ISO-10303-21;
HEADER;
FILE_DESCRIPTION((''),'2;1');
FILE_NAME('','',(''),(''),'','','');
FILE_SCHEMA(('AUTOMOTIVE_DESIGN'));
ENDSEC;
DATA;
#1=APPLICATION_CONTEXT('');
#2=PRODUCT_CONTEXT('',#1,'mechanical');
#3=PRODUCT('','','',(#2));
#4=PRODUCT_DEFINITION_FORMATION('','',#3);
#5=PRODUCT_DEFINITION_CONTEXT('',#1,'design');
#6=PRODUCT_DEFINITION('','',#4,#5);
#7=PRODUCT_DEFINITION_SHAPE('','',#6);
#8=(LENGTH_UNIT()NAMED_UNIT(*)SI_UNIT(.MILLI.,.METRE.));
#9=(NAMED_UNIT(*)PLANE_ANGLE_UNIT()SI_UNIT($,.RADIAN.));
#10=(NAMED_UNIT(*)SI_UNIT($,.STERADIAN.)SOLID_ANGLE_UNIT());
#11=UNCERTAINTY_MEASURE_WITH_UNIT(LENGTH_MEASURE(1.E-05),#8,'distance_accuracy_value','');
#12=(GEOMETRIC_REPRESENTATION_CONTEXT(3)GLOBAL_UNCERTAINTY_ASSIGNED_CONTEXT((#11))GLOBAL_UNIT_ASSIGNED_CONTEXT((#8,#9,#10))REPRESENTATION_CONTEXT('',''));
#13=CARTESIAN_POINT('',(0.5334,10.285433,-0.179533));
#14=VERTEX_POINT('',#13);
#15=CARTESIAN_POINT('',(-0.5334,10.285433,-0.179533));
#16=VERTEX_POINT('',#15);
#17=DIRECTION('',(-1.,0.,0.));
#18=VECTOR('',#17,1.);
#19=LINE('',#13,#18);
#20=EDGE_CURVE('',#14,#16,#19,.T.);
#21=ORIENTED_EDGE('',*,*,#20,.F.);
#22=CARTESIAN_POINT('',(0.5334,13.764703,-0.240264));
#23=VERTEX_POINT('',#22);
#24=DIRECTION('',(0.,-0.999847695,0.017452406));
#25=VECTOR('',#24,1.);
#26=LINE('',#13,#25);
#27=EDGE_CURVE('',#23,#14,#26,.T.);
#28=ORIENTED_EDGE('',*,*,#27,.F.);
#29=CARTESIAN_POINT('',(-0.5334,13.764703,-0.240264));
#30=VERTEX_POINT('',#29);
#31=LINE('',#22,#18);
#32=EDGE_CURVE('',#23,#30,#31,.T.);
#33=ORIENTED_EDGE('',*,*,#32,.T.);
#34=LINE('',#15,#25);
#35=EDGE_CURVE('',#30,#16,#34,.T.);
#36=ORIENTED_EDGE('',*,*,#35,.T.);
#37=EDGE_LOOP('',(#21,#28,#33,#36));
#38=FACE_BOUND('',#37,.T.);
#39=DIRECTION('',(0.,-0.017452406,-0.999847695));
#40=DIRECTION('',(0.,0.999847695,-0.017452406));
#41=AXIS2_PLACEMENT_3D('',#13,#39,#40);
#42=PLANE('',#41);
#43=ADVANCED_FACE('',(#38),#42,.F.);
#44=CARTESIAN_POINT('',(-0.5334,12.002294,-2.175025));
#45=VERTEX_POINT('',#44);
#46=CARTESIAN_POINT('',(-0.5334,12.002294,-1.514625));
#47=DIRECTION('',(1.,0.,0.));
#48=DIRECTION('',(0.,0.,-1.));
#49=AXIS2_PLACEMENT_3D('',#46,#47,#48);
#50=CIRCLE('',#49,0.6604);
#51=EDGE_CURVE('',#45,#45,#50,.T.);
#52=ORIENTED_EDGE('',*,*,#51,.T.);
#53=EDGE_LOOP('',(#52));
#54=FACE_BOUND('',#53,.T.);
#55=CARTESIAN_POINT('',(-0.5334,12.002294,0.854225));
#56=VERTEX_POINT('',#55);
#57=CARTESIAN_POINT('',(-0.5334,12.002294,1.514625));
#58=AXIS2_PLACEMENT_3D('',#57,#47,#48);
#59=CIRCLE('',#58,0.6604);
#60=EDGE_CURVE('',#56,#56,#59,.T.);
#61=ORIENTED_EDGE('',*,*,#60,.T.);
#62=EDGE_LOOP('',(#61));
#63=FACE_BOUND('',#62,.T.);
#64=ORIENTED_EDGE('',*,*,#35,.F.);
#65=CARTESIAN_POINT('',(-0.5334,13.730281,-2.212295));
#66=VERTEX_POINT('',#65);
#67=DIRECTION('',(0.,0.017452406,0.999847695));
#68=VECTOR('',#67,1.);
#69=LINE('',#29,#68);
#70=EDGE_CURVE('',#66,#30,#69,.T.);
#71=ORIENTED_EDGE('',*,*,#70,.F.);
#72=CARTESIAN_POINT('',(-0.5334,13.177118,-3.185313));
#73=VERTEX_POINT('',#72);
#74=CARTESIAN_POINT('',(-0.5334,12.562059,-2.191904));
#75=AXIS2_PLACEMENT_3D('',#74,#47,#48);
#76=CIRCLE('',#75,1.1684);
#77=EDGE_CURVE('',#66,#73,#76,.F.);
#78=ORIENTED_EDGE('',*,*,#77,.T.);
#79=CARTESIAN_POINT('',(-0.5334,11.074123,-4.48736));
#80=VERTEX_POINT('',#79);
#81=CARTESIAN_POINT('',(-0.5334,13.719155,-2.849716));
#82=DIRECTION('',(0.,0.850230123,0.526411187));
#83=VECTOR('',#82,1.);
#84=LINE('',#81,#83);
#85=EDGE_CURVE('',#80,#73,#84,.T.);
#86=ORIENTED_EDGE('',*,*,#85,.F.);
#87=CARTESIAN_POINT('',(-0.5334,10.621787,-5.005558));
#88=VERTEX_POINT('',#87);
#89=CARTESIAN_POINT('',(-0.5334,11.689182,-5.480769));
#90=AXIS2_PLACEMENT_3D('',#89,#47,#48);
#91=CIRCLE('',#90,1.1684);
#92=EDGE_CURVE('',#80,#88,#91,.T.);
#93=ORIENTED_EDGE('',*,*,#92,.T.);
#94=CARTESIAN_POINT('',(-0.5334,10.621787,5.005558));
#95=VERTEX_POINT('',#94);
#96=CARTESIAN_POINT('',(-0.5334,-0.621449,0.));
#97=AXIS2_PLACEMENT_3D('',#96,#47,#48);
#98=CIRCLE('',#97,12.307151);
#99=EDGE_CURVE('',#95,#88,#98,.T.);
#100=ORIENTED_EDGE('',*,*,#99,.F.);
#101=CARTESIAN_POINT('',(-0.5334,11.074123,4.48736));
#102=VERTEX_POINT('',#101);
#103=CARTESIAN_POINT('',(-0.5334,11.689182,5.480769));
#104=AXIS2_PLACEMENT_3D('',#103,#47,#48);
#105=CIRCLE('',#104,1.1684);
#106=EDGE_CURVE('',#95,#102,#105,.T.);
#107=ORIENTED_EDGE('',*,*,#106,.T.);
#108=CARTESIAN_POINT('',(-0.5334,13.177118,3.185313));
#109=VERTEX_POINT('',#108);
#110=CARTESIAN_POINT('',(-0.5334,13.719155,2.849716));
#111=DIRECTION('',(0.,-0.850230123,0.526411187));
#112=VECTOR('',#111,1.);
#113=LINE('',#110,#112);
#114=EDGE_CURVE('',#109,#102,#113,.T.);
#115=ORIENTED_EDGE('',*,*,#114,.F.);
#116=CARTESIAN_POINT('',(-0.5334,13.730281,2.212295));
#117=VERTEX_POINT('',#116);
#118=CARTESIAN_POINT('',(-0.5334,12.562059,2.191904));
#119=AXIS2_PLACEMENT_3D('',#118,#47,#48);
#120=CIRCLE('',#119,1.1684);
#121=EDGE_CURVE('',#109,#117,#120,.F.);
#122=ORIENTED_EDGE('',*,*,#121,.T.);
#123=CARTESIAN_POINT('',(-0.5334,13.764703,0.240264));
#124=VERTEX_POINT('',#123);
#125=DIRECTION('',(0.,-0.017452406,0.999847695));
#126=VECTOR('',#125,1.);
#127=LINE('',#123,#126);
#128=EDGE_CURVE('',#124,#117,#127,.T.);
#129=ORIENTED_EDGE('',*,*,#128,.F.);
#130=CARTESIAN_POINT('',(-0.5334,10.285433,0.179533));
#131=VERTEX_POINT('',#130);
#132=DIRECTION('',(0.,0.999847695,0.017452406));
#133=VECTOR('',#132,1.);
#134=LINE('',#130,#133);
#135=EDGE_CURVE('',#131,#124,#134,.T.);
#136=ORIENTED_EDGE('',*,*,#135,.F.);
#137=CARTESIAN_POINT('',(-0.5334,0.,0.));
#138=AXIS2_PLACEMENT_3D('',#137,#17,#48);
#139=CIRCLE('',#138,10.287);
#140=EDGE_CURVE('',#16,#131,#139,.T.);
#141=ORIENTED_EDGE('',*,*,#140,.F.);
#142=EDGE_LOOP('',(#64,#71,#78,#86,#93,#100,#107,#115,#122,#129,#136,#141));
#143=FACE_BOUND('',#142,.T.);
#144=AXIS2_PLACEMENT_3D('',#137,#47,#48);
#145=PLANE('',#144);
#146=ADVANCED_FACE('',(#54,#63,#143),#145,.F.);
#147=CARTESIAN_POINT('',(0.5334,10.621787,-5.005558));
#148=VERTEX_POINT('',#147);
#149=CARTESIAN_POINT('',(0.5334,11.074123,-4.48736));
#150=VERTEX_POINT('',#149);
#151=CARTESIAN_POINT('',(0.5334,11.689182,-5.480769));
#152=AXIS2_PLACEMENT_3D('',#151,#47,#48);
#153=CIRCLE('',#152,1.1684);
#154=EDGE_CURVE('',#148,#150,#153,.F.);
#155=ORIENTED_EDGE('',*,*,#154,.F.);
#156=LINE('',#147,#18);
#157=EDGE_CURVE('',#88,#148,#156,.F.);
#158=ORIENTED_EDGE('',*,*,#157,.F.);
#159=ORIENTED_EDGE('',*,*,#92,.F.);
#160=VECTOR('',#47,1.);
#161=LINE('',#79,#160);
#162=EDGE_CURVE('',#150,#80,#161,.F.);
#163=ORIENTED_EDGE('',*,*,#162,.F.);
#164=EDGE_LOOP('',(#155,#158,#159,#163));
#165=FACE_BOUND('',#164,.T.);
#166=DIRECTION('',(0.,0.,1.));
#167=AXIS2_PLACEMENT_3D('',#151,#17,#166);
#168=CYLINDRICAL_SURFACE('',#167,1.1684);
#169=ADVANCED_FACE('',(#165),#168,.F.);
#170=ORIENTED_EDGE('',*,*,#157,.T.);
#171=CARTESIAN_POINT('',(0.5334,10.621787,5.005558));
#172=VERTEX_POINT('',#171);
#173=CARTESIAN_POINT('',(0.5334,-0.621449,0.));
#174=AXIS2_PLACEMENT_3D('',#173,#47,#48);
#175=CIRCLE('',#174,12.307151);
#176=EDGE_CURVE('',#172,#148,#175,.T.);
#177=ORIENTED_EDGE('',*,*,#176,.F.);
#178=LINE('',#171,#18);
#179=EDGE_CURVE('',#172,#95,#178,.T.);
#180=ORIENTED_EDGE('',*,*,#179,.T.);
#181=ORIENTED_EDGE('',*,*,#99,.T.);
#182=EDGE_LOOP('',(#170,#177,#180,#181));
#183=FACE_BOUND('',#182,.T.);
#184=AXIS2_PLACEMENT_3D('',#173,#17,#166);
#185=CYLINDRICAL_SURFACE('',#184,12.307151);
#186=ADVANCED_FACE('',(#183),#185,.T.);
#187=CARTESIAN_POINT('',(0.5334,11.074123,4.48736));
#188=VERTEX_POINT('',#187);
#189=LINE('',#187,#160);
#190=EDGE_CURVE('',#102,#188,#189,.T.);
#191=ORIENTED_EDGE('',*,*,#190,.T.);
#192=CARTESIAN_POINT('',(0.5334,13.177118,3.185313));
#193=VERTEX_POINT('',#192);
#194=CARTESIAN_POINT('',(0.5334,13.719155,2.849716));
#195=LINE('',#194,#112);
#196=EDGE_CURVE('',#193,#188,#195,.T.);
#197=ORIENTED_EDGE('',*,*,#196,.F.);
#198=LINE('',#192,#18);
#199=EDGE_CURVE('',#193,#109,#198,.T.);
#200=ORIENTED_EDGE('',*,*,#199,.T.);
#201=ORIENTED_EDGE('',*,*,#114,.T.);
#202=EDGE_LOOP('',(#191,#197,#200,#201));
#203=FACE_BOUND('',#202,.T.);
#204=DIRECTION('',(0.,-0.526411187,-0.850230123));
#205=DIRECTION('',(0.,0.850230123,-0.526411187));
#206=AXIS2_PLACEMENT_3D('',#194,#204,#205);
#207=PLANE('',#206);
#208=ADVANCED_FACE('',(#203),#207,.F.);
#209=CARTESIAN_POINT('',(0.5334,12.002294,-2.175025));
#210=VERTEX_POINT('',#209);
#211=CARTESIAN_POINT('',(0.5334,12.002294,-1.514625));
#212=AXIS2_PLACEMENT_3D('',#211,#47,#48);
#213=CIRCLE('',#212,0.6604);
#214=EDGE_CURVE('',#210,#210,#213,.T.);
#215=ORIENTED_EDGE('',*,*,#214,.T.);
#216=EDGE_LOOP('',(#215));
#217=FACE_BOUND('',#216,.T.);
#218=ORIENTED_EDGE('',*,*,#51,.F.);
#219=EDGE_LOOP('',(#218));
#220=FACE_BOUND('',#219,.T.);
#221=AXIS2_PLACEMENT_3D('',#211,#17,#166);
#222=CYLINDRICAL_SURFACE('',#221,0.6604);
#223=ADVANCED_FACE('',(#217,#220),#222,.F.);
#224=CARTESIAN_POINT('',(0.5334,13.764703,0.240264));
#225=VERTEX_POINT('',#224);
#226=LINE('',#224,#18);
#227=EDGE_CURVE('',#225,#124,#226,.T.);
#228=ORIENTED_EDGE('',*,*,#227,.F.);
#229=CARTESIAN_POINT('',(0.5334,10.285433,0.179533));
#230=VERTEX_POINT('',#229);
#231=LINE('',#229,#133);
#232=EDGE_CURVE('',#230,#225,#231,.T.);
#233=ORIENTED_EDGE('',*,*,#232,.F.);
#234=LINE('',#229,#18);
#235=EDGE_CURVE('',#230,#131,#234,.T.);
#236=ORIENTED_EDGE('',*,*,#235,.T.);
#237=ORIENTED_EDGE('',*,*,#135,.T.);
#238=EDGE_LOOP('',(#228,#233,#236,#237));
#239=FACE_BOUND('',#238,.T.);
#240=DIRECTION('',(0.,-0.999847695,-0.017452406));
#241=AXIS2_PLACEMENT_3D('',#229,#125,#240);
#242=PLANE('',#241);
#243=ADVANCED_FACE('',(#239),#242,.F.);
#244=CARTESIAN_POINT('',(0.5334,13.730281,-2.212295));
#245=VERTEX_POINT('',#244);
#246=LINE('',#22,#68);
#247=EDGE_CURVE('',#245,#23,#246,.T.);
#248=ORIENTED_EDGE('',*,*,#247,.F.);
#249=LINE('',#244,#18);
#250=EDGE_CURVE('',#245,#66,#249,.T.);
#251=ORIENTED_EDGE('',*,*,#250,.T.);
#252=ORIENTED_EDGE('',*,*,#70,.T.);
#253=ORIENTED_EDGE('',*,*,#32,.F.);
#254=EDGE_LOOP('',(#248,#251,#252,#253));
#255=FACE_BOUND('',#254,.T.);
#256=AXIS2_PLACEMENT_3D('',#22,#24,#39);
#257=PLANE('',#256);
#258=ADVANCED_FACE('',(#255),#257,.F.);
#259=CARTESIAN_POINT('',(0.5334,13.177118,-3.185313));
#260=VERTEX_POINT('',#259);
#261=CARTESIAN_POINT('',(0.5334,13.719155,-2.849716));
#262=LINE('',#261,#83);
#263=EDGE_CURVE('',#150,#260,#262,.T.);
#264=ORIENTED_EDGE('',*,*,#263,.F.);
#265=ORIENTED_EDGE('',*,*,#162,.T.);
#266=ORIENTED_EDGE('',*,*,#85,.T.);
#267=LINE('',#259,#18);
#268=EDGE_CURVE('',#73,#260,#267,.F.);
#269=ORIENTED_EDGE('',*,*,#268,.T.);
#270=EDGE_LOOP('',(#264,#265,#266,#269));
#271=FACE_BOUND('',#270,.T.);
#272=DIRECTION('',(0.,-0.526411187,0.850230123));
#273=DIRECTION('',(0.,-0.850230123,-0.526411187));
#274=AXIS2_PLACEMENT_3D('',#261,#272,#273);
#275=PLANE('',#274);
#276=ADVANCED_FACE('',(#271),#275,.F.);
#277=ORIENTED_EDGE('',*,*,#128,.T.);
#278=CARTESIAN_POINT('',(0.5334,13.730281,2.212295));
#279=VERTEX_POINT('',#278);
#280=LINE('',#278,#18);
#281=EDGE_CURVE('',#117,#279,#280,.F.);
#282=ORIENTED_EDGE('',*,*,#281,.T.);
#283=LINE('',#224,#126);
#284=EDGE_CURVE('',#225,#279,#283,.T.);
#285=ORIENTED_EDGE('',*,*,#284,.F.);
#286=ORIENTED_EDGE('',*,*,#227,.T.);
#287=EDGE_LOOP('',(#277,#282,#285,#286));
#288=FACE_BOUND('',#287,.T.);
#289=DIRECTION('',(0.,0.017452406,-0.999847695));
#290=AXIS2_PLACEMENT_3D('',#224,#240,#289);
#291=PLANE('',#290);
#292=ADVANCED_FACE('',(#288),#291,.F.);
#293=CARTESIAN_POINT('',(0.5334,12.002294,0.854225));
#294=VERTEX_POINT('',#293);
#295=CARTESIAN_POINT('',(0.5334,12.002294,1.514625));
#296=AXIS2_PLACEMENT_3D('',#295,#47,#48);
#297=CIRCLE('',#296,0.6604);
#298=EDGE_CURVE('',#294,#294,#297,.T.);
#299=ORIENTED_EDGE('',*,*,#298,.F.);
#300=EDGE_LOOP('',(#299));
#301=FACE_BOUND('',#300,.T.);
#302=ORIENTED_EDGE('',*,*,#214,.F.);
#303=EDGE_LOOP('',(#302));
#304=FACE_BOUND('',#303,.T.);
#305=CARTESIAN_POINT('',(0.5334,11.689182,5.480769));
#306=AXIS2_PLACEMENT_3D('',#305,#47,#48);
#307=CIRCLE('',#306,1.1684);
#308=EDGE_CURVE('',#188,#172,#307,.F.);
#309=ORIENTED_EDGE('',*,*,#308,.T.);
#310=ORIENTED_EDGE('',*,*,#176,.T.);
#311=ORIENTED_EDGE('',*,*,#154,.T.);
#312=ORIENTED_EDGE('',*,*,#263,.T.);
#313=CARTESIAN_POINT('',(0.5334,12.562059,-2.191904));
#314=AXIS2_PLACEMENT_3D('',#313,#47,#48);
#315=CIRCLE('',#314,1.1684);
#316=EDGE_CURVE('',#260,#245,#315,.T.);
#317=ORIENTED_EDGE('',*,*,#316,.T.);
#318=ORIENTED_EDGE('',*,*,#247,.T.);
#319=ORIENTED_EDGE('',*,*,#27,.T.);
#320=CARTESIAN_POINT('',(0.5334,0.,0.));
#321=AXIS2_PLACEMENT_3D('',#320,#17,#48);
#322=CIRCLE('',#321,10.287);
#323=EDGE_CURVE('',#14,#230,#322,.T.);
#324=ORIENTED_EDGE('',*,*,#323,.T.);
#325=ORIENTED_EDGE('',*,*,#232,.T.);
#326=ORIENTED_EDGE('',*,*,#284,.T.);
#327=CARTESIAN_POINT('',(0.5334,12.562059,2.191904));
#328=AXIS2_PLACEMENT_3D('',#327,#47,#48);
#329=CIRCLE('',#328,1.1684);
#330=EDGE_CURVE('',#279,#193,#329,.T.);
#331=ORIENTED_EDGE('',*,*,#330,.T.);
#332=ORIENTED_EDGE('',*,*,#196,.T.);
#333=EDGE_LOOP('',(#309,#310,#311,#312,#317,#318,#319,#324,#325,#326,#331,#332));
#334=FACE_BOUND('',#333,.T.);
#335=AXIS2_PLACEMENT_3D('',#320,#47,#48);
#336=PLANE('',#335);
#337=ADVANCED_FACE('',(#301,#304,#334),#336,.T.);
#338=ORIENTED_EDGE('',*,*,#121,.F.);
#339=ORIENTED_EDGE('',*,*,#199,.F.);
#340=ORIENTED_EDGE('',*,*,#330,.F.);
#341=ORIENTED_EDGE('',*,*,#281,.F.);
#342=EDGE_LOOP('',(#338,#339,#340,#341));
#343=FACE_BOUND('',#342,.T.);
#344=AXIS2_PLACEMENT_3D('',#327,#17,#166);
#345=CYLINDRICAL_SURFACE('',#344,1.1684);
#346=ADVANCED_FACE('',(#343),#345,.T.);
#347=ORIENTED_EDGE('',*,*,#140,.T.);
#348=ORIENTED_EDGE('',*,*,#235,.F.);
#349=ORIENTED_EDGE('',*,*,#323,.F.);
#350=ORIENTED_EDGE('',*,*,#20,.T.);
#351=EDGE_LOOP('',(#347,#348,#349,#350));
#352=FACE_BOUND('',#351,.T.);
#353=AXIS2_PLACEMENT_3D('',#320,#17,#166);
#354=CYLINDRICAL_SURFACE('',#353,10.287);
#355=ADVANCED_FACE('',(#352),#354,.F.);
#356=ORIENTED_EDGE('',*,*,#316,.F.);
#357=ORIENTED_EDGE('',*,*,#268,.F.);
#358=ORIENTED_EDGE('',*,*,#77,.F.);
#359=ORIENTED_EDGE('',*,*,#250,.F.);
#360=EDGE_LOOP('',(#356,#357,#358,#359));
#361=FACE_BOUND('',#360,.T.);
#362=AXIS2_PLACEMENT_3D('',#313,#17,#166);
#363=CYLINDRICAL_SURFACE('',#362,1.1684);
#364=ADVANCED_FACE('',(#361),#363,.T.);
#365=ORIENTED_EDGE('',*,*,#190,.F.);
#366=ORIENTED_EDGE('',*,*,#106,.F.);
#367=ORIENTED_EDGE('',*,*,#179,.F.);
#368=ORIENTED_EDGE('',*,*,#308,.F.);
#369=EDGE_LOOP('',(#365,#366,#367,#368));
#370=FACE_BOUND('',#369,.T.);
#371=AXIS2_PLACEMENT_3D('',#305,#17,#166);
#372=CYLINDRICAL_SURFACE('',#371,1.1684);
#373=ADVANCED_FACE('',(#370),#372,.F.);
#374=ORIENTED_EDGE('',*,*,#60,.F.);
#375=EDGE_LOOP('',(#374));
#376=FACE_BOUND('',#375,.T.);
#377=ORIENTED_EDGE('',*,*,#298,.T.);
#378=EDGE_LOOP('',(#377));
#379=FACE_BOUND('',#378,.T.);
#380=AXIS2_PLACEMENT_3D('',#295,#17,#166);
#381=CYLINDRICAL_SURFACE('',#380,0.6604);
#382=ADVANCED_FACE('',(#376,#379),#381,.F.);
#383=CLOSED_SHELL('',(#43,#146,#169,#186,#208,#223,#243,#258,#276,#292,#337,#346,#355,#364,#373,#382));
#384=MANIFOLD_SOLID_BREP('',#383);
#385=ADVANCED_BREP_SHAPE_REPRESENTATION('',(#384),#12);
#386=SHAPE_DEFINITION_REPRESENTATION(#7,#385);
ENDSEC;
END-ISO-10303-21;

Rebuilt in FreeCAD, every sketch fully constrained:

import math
import FreeCAD as App
import Part
import Sketcher
from FreeCAD import Vector
Q = App.Units.Quantity


def edges_at(feature, points):
    """Names of the edges that pass closest to the given points."""
    edges = feature.Shape.Edges
    near = lambda p: min(range(len(edges)), key=lambda i: edges[i].distToShape(Part.Vertex(*p))[0])
    return sorted({f"Edge{near(p) + 1}" for p in points})

doc = App.newDocument("Part")
body = doc.addObject("PartDesign::Body", "Body")

# Sketch on YZ plane
sketch1 = doc.addObject("Sketcher::SketchObject", "Sketch")
body.addObject(sketch1)
sketch1.AttachmentSupport = (doc.YZ_Plane, [""])
sketch1.MapMode = "FlatFace"
sketch1.addGeometry(Part.LineSegment(Vector(10.29, 0.18, 0), Vector(13.76, 0.24, 0)), False)
sketch1.addGeometry(Part.LineSegment(Vector(13.76, 0.24, 0), Vector(13.72, 2.85, 0)), False)
sketch1.addGeometry(Part.LineSegment(Vector(13.72, 2.85, 0), Vector(10.76, 4.68, 0)), False)
sketch1.addGeometry(Part.ArcOfCircle(Part.Circle(Vector(-0.62, 0, 0), Vector(0, 0, 1), 12.31), math.radians(22), math.radians(338)), False)
sketch1.addGeometry(Part.LineSegment(Vector(10.76, -4.68, 0), Vector(13.72, -2.85, 0)), False)
sketch1.addGeometry(Part.LineSegment(Vector(13.72, -2.85, 0), Vector(13.76, -0.24, 0)), False)
sketch1.addGeometry(Part.LineSegment(Vector(13.76, -0.24, 0), Vector(10.29, -0.18, 0)), False)
sketch1.addGeometry(Part.ArcOfCircle(Part.Circle(Vector(0, 0, 0), Vector(0, 0, 1), 10.29), math.radians(1), math.radians(359)), False)
sketch1.addGeometry(Part.Circle(Vector(12, 1.51, 0), Vector(0, 0, 1), 0.66), False)
sketch1.addGeometry(Part.Circle(Vector(12, -1.51, 0), Vector(0, 0, 1), 0.66), False)
sketch1.addConstraint(Sketcher.Constraint("Coincident", 0, 2, 1, 1))
sketch1.addConstraint(Sketcher.Constraint("Coincident", 1, 2, 2, 1))
sketch1.addConstraint(Sketcher.Constraint("Coincident", 2, 2, 3, 1))
sketch1.addConstraint(Sketcher.Constraint("Coincident", 3, 2, 4, 1))
sketch1.addConstraint(Sketcher.Constraint("Coincident", 4, 2, 5, 1))
sketch1.addConstraint(Sketcher.Constraint("Coincident", 5, 2, 6, 1))
sketch1.addConstraint(Sketcher.Constraint("Coincident", 6, 2, 7, 2))
sketch1.addConstraint(Sketcher.Constraint("Coincident", 7, 1, 0, 1))
sketch1.addConstraint(Sketcher.Constraint("Coincident", 7, 3, -1, 1))
sketch1.addConstraint(Sketcher.Constraint("Equal", 8, 9))
sketch1.addConstraint(Sketcher.Constraint("Symmetric", 8, 3, 9, 3, -1))
sketch1.addConstraint(Sketcher.Constraint("Symmetric", 2, 2, 3, 2, -1))
sketch1.addConstraint(Sketcher.Constraint("Symmetric", 1, 2, 4, 2, -1))
sketch1.addConstraint(Sketcher.Constraint("Symmetric", 0, 2, 5, 2, -1))
sketch1.addConstraint(Sketcher.Constraint("Perpendicular", 0, 1))
sketch1.addConstraint(Sketcher.Constraint("Perpendicular", 5, 6))
sketch1.addConstraint(Sketcher.Constraint("Equal", 0, 2))
sketch1.addConstraint(Sketcher.Constraint("Diameter", 8, Q("0.052 in")))
sketch1.addConstraint(Sketcher.Constraint("Angle", 0, Q("1 deg")))
sketch1.addConstraint(Sketcher.Constraint("Radius", 7, Q("0.405 in")))
sketch1.addConstraint(Sketcher.Constraint("Distance", 0, Q("0.137 in")))
sketch1.addConstraint(Sketcher.Constraint("Radius", 3, 12.307151))
sketch1.addConstraint(Sketcher.Constraint("Distance", 1, 2.60985))
sketch1.addConstraint(Sketcher.Constraint("DistanceX", 3, 3, -1, 1, 0.621449))
sketch1.addConstraint(Sketcher.Constraint("DistanceY", -1, 1, 2, 2, 4.681522))
sketch1.addConstraint(Sketcher.Constraint("DistanceY", 9, 3, 8, 3, 3.029249))
sketch1.addConstraint(Sketcher.Constraint("DistanceX", 8, 3, 0, 2, 1.762409))
pad1 = doc.addObject("PartDesign::Pad", "Pad")
body.addObject(pad1)
pad1.Profile = sketch1
pad1.Length = Q("0.042 in")
pad1.Midplane = True
doc.recompute()

fillet = doc.addObject("PartDesign::Fillet", "Fillet")
body.addObject(fillet)
fillet.Base = (pad1, edges_at(pad1, [
    (0, 13.719, -2.85),
    (0, 10.761, -4.682),
    (0, 10.761, 4.682),
    (0, 13.719, 2.85),
]))
fillet.Radius = Q("0.046 in")

doc.recompute()
